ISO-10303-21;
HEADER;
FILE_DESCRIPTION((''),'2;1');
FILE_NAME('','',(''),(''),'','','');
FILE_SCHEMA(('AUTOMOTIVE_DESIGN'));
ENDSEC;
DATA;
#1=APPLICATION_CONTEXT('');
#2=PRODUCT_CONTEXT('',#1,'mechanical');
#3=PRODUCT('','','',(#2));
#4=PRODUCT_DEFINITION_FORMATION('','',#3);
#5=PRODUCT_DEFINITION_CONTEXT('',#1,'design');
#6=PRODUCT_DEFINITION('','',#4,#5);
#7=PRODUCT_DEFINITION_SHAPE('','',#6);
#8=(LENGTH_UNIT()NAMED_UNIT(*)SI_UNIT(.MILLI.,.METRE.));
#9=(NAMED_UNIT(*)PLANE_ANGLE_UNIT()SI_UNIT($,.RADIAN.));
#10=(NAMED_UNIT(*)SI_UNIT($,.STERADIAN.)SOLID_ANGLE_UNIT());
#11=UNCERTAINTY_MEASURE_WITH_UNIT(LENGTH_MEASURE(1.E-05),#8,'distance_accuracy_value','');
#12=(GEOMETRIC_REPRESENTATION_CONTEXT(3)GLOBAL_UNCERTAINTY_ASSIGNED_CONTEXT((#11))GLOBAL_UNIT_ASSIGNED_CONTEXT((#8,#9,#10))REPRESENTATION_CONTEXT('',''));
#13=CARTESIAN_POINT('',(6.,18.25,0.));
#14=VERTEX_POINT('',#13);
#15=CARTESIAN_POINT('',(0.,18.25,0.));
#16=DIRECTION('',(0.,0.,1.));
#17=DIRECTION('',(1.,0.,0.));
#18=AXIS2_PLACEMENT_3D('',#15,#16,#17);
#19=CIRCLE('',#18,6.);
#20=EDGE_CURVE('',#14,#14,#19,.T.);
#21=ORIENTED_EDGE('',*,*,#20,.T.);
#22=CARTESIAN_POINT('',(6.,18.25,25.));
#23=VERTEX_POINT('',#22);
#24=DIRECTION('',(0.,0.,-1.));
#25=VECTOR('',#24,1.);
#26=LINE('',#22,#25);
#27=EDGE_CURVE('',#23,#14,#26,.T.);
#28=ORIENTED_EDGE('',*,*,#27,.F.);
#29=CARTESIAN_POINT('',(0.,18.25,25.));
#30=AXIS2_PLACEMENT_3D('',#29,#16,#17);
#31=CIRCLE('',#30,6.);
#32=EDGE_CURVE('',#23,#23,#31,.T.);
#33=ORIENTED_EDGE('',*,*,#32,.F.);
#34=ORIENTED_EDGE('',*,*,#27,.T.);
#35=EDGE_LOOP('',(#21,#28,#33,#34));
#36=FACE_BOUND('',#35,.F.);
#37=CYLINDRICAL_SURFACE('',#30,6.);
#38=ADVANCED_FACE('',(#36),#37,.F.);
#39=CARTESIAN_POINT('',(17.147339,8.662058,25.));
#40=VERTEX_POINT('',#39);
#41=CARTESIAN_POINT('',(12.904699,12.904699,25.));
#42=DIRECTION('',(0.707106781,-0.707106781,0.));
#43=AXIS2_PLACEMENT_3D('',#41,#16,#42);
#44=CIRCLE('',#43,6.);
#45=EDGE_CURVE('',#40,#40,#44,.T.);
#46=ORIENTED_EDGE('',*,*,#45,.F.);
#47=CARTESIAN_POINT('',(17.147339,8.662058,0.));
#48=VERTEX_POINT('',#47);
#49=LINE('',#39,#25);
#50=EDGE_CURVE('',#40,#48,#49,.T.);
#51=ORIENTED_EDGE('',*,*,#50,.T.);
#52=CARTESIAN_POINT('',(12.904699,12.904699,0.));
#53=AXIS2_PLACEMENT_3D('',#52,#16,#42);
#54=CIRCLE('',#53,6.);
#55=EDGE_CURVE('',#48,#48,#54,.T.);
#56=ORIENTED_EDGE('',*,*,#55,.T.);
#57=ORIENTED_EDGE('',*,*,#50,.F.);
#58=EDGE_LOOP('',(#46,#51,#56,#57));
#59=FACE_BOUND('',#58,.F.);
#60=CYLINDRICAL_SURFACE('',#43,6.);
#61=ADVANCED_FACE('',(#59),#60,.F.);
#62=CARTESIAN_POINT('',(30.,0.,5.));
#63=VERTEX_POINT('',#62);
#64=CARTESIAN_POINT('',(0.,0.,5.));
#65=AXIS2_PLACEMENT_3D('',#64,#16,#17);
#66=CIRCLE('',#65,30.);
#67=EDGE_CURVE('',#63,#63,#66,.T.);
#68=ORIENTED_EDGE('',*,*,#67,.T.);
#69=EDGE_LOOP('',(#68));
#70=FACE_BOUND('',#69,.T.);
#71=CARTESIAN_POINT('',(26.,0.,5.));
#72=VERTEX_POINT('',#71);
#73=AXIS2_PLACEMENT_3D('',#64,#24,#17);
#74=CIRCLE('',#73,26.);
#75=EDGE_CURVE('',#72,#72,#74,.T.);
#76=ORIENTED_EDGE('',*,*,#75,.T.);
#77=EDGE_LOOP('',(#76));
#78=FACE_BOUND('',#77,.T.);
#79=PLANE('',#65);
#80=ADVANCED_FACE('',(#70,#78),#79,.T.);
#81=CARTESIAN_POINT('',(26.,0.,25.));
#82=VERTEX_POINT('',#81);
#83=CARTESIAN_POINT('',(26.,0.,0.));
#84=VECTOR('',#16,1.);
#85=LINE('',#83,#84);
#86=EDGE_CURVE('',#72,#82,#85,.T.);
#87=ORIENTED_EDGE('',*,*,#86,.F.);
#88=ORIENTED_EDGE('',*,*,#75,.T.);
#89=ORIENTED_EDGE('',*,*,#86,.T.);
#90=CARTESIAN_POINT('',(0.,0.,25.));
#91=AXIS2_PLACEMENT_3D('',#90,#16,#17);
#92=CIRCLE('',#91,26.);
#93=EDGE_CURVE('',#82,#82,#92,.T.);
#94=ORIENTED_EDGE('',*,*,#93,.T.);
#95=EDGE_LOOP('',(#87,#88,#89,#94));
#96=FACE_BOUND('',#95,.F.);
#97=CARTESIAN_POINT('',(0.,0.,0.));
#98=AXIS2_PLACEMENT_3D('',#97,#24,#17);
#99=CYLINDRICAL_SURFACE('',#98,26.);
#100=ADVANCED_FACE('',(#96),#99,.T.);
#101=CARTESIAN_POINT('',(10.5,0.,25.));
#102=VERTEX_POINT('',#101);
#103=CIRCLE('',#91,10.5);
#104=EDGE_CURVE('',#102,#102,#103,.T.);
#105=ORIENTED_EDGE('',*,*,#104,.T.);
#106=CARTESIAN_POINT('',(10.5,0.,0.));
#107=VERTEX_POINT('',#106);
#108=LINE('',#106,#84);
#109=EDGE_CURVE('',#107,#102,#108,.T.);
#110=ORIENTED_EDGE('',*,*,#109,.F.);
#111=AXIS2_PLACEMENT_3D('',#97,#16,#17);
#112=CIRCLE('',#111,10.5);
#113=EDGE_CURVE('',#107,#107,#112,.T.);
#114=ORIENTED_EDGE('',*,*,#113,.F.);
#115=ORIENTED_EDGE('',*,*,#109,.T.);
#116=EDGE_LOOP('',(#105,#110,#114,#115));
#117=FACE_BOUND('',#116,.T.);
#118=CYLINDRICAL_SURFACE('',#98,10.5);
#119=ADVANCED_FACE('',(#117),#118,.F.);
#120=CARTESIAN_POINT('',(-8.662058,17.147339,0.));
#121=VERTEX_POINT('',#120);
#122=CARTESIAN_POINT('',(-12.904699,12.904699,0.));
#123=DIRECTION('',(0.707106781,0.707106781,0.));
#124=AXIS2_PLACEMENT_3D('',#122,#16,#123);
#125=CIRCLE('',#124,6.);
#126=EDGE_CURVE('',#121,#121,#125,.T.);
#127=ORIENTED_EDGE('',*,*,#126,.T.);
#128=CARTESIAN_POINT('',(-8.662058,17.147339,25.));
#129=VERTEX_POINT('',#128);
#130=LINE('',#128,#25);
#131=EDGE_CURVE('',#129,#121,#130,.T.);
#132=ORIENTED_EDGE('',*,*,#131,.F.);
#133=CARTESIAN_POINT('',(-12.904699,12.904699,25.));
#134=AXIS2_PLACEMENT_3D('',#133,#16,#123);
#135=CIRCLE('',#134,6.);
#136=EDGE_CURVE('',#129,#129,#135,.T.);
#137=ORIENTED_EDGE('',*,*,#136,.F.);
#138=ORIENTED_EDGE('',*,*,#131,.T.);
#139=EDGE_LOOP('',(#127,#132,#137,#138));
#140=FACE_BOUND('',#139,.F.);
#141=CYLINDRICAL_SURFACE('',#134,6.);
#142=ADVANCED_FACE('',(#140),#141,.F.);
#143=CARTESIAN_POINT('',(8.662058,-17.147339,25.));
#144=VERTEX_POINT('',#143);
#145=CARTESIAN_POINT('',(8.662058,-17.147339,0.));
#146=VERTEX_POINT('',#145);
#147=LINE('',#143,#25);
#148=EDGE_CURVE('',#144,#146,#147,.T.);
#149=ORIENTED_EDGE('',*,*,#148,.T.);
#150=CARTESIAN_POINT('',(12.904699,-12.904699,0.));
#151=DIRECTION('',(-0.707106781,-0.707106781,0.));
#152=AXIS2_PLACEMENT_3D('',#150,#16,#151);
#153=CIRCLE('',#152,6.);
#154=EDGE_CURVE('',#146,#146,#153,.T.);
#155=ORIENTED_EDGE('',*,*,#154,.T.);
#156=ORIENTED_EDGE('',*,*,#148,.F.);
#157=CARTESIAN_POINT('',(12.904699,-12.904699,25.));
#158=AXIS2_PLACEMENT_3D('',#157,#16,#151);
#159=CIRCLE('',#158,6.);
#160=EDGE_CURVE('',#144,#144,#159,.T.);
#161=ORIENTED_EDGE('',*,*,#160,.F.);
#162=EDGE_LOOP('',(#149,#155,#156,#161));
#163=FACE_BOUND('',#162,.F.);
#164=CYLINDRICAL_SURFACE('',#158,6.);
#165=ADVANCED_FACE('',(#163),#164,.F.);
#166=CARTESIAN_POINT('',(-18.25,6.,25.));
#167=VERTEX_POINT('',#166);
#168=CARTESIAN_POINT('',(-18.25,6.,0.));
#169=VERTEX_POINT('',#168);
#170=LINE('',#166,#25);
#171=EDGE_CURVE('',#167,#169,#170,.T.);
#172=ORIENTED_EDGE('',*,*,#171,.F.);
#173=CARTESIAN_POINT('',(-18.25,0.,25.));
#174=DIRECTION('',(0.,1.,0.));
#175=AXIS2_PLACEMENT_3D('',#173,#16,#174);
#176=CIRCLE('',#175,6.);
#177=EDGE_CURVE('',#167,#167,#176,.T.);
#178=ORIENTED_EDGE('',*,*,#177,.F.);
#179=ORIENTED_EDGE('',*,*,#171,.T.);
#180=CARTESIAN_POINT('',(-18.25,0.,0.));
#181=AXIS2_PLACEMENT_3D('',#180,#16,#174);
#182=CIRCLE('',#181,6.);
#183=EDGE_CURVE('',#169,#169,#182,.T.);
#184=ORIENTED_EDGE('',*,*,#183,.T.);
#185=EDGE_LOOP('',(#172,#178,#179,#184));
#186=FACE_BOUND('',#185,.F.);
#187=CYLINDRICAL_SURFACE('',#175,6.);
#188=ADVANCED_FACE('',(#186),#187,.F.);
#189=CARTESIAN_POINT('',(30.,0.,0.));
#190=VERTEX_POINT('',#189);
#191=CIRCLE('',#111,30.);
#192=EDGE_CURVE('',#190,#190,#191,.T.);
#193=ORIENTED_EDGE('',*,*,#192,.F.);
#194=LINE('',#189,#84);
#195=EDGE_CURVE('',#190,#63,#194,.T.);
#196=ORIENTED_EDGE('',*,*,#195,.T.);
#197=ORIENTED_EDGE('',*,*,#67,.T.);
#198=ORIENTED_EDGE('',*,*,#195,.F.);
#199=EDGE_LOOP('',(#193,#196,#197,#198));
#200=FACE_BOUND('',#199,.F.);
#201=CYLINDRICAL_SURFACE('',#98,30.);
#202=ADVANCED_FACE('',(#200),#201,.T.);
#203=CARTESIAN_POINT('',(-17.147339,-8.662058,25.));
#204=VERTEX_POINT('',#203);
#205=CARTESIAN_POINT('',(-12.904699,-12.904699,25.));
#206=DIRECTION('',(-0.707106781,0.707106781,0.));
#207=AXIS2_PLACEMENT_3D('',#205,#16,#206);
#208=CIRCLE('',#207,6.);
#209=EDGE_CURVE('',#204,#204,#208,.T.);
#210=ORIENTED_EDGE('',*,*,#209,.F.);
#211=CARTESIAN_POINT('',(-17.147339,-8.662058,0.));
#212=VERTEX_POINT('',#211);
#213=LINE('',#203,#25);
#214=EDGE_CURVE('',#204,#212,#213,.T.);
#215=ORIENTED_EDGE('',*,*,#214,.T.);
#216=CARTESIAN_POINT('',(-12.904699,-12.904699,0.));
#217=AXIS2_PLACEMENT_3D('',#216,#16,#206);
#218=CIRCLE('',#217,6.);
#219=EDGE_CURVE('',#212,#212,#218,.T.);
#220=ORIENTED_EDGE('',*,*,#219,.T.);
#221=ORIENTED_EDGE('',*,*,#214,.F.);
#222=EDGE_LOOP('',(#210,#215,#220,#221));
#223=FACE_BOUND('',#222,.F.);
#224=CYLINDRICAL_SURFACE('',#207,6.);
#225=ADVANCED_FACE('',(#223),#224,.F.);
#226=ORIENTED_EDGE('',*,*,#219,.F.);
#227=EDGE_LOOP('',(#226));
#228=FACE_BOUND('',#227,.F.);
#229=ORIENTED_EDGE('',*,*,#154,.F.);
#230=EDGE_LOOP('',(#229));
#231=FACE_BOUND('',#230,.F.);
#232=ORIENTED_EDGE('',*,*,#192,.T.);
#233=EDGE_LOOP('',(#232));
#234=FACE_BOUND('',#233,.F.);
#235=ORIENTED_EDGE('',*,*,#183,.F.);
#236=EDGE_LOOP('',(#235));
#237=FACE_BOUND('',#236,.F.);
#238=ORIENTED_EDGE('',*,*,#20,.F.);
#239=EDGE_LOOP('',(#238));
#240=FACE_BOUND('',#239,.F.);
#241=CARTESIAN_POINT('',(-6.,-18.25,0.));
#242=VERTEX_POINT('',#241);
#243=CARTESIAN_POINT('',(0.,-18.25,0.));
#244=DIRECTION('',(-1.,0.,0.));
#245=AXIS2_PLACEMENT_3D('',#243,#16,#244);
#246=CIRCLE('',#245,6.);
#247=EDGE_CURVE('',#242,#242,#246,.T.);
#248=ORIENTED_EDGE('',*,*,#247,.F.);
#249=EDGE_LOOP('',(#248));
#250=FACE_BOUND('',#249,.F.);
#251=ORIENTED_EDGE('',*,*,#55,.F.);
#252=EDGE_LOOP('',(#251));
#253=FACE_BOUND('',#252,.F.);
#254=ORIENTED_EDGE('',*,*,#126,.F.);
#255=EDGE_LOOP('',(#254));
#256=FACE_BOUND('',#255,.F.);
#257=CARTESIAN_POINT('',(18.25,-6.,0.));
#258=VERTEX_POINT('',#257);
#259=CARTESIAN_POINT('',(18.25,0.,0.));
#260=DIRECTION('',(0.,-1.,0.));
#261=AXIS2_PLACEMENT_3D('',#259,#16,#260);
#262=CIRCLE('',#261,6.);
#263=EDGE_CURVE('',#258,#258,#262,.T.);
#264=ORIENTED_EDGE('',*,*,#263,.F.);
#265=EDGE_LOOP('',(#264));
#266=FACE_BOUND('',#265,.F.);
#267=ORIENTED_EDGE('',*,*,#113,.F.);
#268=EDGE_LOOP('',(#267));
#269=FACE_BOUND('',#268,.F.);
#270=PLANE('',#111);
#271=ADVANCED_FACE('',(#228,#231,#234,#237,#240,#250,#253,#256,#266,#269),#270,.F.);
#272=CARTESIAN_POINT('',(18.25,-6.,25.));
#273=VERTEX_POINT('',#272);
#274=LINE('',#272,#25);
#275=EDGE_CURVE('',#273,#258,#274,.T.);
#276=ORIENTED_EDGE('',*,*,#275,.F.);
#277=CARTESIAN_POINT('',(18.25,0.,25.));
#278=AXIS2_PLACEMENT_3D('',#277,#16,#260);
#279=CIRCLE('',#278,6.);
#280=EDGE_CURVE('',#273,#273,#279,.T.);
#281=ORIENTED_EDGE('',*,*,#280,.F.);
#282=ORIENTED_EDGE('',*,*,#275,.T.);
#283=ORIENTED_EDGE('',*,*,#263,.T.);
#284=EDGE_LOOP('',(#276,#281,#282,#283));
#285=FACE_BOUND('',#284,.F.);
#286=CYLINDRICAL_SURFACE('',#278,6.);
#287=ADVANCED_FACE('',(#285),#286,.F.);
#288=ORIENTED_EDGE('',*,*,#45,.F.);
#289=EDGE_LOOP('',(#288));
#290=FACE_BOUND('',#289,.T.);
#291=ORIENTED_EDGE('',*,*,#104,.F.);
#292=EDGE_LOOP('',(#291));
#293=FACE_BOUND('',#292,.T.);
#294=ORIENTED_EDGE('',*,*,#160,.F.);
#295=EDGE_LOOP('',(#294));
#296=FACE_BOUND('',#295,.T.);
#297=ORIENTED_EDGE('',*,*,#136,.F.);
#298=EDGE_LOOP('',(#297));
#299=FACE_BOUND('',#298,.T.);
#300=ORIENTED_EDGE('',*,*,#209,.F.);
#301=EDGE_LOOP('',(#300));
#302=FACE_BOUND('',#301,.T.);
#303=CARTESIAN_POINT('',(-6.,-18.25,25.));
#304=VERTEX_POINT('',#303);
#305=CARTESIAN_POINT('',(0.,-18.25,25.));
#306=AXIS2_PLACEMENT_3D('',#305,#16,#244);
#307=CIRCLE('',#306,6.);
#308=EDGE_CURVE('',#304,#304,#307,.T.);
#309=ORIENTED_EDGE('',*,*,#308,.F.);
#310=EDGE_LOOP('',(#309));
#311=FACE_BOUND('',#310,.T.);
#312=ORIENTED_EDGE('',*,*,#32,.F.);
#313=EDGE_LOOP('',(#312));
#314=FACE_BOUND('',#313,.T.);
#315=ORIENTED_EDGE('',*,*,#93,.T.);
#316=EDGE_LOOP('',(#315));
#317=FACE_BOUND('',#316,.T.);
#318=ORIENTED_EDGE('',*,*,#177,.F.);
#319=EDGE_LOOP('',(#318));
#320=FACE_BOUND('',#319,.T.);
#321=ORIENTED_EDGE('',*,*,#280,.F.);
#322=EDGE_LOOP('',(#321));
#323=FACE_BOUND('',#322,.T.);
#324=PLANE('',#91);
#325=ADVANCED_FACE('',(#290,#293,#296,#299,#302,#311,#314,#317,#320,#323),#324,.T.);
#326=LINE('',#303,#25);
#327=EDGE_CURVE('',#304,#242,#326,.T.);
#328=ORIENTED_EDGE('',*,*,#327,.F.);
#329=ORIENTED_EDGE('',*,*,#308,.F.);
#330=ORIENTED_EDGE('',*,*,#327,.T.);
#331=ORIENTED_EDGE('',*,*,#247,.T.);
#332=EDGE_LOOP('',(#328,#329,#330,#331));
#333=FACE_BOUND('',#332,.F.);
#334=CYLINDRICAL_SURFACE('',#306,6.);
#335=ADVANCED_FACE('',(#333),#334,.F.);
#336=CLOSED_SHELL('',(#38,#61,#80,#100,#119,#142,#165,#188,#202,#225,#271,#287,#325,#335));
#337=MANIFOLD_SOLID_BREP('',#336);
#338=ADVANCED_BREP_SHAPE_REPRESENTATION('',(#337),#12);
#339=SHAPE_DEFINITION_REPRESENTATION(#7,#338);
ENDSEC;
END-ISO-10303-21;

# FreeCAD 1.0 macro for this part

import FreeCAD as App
import Part
import Sketcher

doc = App.newDocument("Part")
body = doc.addObject("PartDesign::Body", "Body")

# Sketch on XY plane
sketch1 = body.newObject("Sketcher::SketchObject", "Sketch")
sketch1.AttachmentSupport = (doc.getObject("XY_Plane"), [""])
sketch1.MapMode = "FlatFace"
sketch1.addGeometry(Part.Circle(App.Vector(0, 0, 0), App.Vector(0, 0, 1), 10), False)
sketch1.addConstraint(Sketcher.Constraint("Coincident", 0, 3, -1, 1))
sketch1.addConstraint(Sketcher.Constraint("Diameter", 0, 21.0))
pad1 = body.newObject("PartDesign::Pad", "Pad")
pad1.Profile = sketch1
pad1.Length = 25
body2 = doc.addObject("PartDesign::Body", "Body001")

# Sketch on XY plane
sketch2 = body2.newObject("Sketcher::SketchObject", "Sketch001")
sketch2.AttachmentSupport = (doc.getObject("XY_Plane001"), [""])
sketch2.MapMode = "FlatFace"
sketch2.addGeometry(Part.Circle(App.Vector(0, 0, 0), App.Vector(0, 0, 1), 26), False)
sketch2.addConstraint(Sketcher.Constraint("Coincident", 0, 3, -1, 1))
sketch2.addConstraint(Sketcher.Constraint("Diameter", 0, 52.0))
pad2 = body2.newObject("PartDesign::Pad", "Pad001")
pad2.Profile = sketch2
pad2.Length = 25
body3 = doc.addObject("PartDesign::Body", "Body002")

# Sketch on XY plane
sketch3 = body3.newObject("Sketcher::SketchObject", "Sketch002")
sketch3.AttachmentSupport = (doc.getObject("XY_Plane002"), [""])
sketch3.MapMode = "FlatFace"
sketch3.addGeometry(Part.Circle(App.Vector(0, 0, 0), App.Vector(0, 0, 1), 30), False)
sketch3.addConstraint(Sketcher.Constraint("Coincident", 0, 3, -1, 1))
sketch3.addConstraint(Sketcher.Constraint("Diameter", 0, 60.0))
pad3 = body3.newObject("PartDesign::Pad", "Pad002")
pad3.Profile = sketch3
pad3.Length = 5
doc.recompute()

boolean = body3.newObject("PartDesign::Boolean", "Boolean")
boolean.Type = "Fuse"
boolean.addObjects([body2])
doc.recompute()

boolean2 = body3.newObject("PartDesign::Boolean", "Boolean001")
boolean2.Type = "Cut"
boolean2.addObjects([body])

# Sketch on XY plane
sketch4 = body3.newObject("Sketcher::SketchObject", "Sketch003")
sketch4.AttachmentSupport = (doc.getObject("XY_Plane002"), [""])
sketch4.MapMode = "FlatFace"
sketch4.AttachmentOffset = App.Placement(App.Vector(0, 0, 25), App.Rotation())
sketch4.addGeometry(Part.Circle(App.Vector(0, 18, 0), App.Vector(0, 0, 1), 6), False)
sketch4.addConstraint(Sketcher.Constraint("PointOnObject", 0, 3, -2))
sketch4.addConstraint(Sketcher.Constraint("Diameter", 0, 12.0))
sketch4.addConstraint(Sketcher.Constraint("DistanceY", -1, 1, 0, 3, 18.25))
pocket1 = body3.newObject("PartDesign::Pocket", "Pocket")
pocket1.Profile = sketch4
pocket1.Length = 40
doc.recompute()

polarpattern = body3.newObject("PartDesign::PolarPattern", "PolarPattern")
polarpattern.Originals = [pocket1]
polarpattern.Axis = (doc.getObject("Z_Axis002"), [""])
polarpattern.Angle = 360
polarpattern.Occurrences = 8
body3.Tip = polarpattern

doc.recompute()
